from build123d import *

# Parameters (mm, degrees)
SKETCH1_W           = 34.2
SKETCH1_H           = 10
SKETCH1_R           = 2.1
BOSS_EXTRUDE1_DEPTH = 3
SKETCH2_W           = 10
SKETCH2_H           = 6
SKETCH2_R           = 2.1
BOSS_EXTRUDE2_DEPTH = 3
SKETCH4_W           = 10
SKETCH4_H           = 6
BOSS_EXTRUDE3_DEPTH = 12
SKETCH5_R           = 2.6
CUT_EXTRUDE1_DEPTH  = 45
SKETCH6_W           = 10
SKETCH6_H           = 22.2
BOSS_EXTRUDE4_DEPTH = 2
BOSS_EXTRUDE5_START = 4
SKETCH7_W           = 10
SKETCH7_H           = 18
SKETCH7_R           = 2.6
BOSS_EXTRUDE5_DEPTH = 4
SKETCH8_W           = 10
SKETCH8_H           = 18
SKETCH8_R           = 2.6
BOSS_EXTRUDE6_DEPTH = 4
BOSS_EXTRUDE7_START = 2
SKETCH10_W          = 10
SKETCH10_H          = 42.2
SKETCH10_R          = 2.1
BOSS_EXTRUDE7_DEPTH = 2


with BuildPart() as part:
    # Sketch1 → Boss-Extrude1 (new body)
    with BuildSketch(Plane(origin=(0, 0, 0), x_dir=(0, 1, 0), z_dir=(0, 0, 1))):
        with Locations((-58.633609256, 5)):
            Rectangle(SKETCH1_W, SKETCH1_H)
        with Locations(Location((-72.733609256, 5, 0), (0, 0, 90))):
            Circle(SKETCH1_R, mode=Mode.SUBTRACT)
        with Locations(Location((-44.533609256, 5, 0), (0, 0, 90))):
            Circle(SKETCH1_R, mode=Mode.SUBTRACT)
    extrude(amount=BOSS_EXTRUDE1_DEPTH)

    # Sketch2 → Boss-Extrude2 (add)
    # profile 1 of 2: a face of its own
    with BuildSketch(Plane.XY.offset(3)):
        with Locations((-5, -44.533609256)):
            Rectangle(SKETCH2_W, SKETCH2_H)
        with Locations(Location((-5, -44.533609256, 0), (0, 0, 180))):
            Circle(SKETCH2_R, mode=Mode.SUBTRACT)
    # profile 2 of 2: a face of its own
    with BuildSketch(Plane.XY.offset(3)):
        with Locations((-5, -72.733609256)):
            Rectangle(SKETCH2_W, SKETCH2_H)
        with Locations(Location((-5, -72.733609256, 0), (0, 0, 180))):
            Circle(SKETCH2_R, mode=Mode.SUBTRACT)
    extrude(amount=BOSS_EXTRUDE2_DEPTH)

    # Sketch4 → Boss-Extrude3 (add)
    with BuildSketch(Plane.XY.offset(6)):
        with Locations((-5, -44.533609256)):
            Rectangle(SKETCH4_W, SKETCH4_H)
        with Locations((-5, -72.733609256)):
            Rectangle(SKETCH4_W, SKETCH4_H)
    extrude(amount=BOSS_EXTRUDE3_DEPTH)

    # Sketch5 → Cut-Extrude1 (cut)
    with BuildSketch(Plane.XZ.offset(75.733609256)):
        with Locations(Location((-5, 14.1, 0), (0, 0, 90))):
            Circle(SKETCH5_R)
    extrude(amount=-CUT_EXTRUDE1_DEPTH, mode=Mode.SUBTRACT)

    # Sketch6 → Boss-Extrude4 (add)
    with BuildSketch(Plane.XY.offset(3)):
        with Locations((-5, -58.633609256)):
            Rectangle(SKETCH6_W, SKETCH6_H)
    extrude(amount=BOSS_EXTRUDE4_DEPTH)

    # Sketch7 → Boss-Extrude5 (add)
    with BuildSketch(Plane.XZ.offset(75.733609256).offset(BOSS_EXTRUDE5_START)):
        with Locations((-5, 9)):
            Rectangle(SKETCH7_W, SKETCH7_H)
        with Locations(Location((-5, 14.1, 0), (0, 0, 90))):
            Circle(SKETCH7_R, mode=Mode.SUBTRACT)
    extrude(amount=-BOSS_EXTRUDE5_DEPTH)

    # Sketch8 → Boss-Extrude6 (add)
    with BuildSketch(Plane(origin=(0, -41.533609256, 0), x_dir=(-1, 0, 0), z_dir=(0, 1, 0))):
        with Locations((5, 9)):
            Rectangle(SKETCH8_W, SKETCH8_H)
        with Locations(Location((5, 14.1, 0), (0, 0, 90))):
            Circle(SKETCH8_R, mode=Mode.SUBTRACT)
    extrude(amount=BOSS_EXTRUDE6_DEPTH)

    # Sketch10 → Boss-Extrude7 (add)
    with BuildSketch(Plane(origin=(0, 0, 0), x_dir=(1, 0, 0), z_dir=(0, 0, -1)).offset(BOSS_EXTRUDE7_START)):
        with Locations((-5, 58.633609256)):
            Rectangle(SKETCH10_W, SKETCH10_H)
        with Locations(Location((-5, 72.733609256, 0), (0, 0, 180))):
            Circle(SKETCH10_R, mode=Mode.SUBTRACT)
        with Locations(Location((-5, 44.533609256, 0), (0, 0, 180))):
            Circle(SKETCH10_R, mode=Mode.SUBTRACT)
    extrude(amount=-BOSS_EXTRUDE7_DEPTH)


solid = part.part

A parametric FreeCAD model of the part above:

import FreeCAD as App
import Part
import Sketcher
from FreeCAD import Vector
Q = App.Units.Quantity


def add_polygon(sketch, points):
    """Adds a closed chain of lines whose ends are joined by coincident constraints."""
    first, n = sketch.GeometryCount, len(points)
    for a, b in zip(points, points[1:] + points[:1]):
        sketch.addGeometry(Part.LineSegment(App.Vector(*a, 0), App.Vector(*b, 0)), False)
    for i in range(n):
        sketch.addConstraint(Sketcher.Constraint("Coincident", first + i, 2, first + (i + 1) % n, 1))

doc = App.newDocument("Part")
params = doc.addObject("Spreadsheet::Sheet", "Params")
for row, (alias, value) in enumerate([
    ("sketch1_diameter", "4.2 mm"),
    ("sketch1_width", "10 mm"),
    ("sketch1_height", "34.2 mm"),
    ("pad1_length", "3 mm"),
    ("sketch2_diameter", "4.2 mm"),
    ("sketch2_width", "10 mm"),
    ("sketch2_height", "6 mm"),
    ("pad2_length", "3 mm"),
    ("sketch3_width", "10 mm"),
    ("sketch3_height", "6 mm"),
    ("pad3_length", "12 mm"),
    ("sketch4_diameter", "5.2 mm"),
    ("pocket1_length", "45 mm"),
    ("sketch5_width", "10 mm"),
    ("sketch5_height", "22.2 mm"),
    ("pad4_length", "2 mm"),
    ("sketch6_diameter", "5.2 mm"),
    ("sketch6_width", "10 mm"),
    ("sketch6_height", "18 mm"),
    ("pad5_length", "4 mm"),
    ("sketch7_diameter", "5.2 mm"),
    ("sketch7_width", "10 mm"),
    ("sketch7_height", "18 mm"),
    ("pad6_length", "4 mm"),
    ("sketch8_diameter", "4.2 mm"),
    ("sketch8_width", "10 mm"),
    ("sketch8_height", "42.2 mm"),
    ("pad7_length", "2 mm"),
], start=1):
    params.set(f"A{row}", alias)
    params.set(f"B{row}", "=" + value)
    params.setAlias(f"B{row}", alias)

body = doc.addObject("PartDesign::Body", "Body")

# Sketch on XY plane
sketch1 = body.newObject("Sketcher::SketchObject", "Sketch")
sketch1.AttachmentSupport = (doc.getObject("XY_Plane"), [""])
sketch1.MapMode = "FlatFace"
add_polygon(sketch1, [(-10, -75.7), (0, -75.7), (0, -41.5), (-10, -41.5)])  # lines 0-3
sketch1.addGeometry(Part.Circle(Vector(-5, -72.7, 0), Vector(0, 0, 1), 2.1), False)  # 4
sketch1.addGeometry(Part.Circle(Vector(-5, -44.5, 0), Vector(0, 0, 1), 2.1), False)  # 5
sketch1.addConstraint(Sketcher.Constraint("Horizontal", 0))
sketch1.addConstraint(Sketcher.Constraint("Vertical", 1))
sketch1.addConstraint(Sketcher.Constraint("Horizontal", 2))
sketch1.addConstraint(Sketcher.Constraint("Vertical", 3))
sketch1.addConstraint(Sketcher.Constraint("Equal", 4, 5))
sketch1.addConstraint(Sketcher.Constraint("PointOnObject", 0, 2, -2))
sketch1.addConstraint(Sketcher.Constraint("Vertical", 4, 3, 5, 3))
sketch1.addConstraint(Sketcher.Constraint("Diameter", 4, Q("4.2 mm")))
sketch1.addConstraint(Sketcher.Constraint("DistanceX", 0, 1, 0, 2, Q("10 mm")))
sketch1.addConstraint(Sketcher.Constraint("DistanceY", 1, 1, 1, 2, Q("34.2 mm")))
sketch1.addConstraint(Sketcher.Constraint("DistanceX", 4, 3, -1, 1, Q("5 mm")))
sketch1.addConstraint(Sketcher.Constraint("DistanceY", 0, 2, 4, 3, Q("3 mm")))
sketch1.addConstraint(Sketcher.Constraint("DistanceY", 5, 3, 1, 2, Q("3 mm")))
sketch1.addConstraint(Sketcher.Constraint("DistanceY", 4, 3, -1, 1, Q("72.733609 mm")))
sketch1.setExpression("Constraints[11]", "Params.sketch1_diameter")
sketch1.setExpression("Constraints[12]", "Params.sketch1_width")
sketch1.setExpression("Constraints[13]", "Params.sketch1_height")
pad1 = body.newObject("PartDesign::Pad", "Pad")
pad1.Profile = sketch1
pad1.setExpression("Length", "Params.pad1_length")

# Sketch on XY plane
sketch2 = body.newObject("Sketcher::SketchObject", "Sketch001")
sketch2.AttachmentSupport = (doc.getObject("XY_Plane"), [""])
sketch2.MapMode = "FlatFace"
sketch2.AttachmentOffset = App.Placement(Vector(0, 0, 3), App.Rotation())
add_polygon(sketch2, [(-10, -41.5), (-10, -47.5), (0, -47.5), (0, -41.5)])  # lines 0-3
sketch2.addGeometry(Part.Circle(Vector(-5, -44.5, 0), Vector(0, 0, 1), 2.1), False)  # 4
add_polygon(sketch2, [(-10, -69.7), (-10, -75.7), (0, -75.7), (0, -69.7)])  # lines 5-8
sketch2.addGeometry(Part.Circle(Vector(-5, -72.7, 0), Vector(0, 0, 1), 2.1), False)  # 9
sketch2.addConstraint(Sketcher.Constraint("Vertical", 0))
sketch2.addConstraint(Sketcher.Constraint("Horizontal", 1))
sketch2.addConstraint(Sketcher.Constraint("Vertical", 2))
sketch2.addConstraint(Sketcher.Constraint("Horizontal", 3))
sketch2.addConstraint(Sketcher.Constraint("Vertical", 5))
sketch2.addConstraint(Sketcher.Constraint("Horizontal", 6))
sketch2.addConstraint(Sketcher.Constraint("Vertical", 7))
sketch2.addConstraint(Sketcher.Constraint("Horizontal", 8))
sketch2.addConstraint(Sketcher.Constraint("Equal", 4, 9))
sketch2.addConstraint(Sketcher.Constraint("PointOnObject", 1, 2, -2))
sketch2.addConstraint(Sketcher.Constraint("PointOnObject", 6, 2, -2))
sketch2.addConstraint(Sketcher.Constraint("Vertical", 4, 3, 9, 3))
sketch2.addConstraint(Sketcher.Constraint("Vertical", 3, 2, 5, 2))
sketch2.addConstraint(Sketcher.Constraint("Equal", 2, 5))
sketch2.addConstraint(Sketcher.Constraint("Diameter", 4, Q("4.2 mm")))
sketch2.addConstraint(Sketcher.Constraint("DistanceX", 1, 1, 1, 2, Q("10 mm")))
sketch2.addConstraint(Sketcher.Constraint("DistanceY", 0, 2, 0, 1, Q("6 mm")))
sketch2.addConstraint(Sketcher.Constraint("DistanceX", 4, 3, -1, 1, Q("5 mm")))
sketch2.addConstraint(Sketcher.Constraint("DistanceY", 0, 2, 4, 3, Q("3 mm")))
sketch2.addConstraint(Sketcher.Constraint("DistanceY", 5, 2, 9, 3, Q("3 mm")))
sketch2.addConstraint(Sketcher.Constraint("DistanceY", 9, 3, 4, 3, Q("28.2 mm")))
sketch2.addConstraint(Sketcher.Constraint("DistanceY", 4, 3, -1, 1, Q("44.533609 mm")))
sketch2.setExpression("Constraints[22]", "Params.sketch2_diameter")
sketch2.setExpression("Constraints[23]", "Params.sketch2_width")
sketch2.setExpression("Constraints[24]", "Params.sketch2_height")
pad2 = body.newObject("PartDesign::Pad", "Pad001")
pad2.Profile = sketch2
pad2.setExpression("Length", "Params.pad2_length")

# Sketch on XY plane
sketch3 = body.newObject("Sketcher::SketchObject", "Sketch002")
sketch3.AttachmentSupport = (doc.getObject("XY_Plane"), [""])
sketch3.MapMode = "FlatFace"
sketch3.AttachmentOffset = App.Placement(Vector(0, 0, 6), App.Rotation())
add_polygon(sketch3, [(-10, -42), (-10, -48), (0, -48), (0, -42)])  # lines 0-3
add_polygon(sketch3, [(-10, -70), (-10, -76), (0, -76), (0, -70)])  # lines 4-7
sketch3.addConstraint(Sketcher.Constraint("Vertical", 0))
sketch3.addConstraint(Sketcher.Constraint("Horizontal", 1))
sketch3.addConstraint(Sketcher.Constraint("Vertical", 2))
sketch3.addConstraint(Sketcher.Constraint("Horizontal", 3))
sketch3.addConstraint(Sketcher.Constraint("Vertical", 4))
sketch3.addConstraint(Sketcher.Constraint("Horizontal", 5))
sketch3.addConstraint(Sketcher.Constraint("Vertical", 6))
sketch3.addConstraint(Sketcher.Constraint("Horizontal", 7))
sketch3.addConstraint(Sketcher.Constraint("PointOnObject", 1, 2, -2))
sketch3.addConstraint(Sketcher.Constraint("PointOnObject", 5, 2, -2))
sketch3.addConstraint(Sketcher.Constraint("Vertical", 3, 2, 4, 2))
sketch3.addConstraint(Sketcher.Constraint("Equal", 2, 4))
sketch3.addConstraint(Sketcher.Constraint("DistanceX", 1, 1, 1, 2, Q("10 mm")))
sketch3.addConstraint(Sketcher.Constraint("DistanceY", 0, 2, 0, 1, Q("6 mm")))
sketch3.addConstraint(Sketcher.Constraint("DistanceY", 4, 2, 0, 2, Q("28.2 mm")))
sketch3.addConstraint(Sketcher.Constraint("DistanceY", 0, 2, -1, 1, Q("47.533609 mm")))
sketch3.setExpression("Constraints[20]", "Params.sketch3_width")
sketch3.setExpression("Constraints[21]", "Params.sketch3_height")
pad3 = body.newObject("PartDesign::Pad", "Pad002")
pad3.Profile = sketch3
pad3.setExpression("Length", "Params.pad3_length")

# Sketch on XZ plane
sketch4 = body.newObject("Sketcher::SketchObject", "Sketch003")
sketch4.AttachmentSupport = (doc.getObject("XZ_Plane"), [""])
sketch4.MapMode = "FlatFace"
sketch4.AttachmentOffset = App.Placement(Vector(0, 0, 75.733609), App.Rotation())
sketch4.addGeometry(Part.Circle(Vector(-5, 14.1, 0), Vector(0, 0, 1), 2.6), False)
sketch4.addConstraint(Sketcher.Constraint("Diameter", 0, Q("5.2 mm")))
sketch4.addConstraint(Sketcher.Constraint("DistanceX", 0, 3, -1, 1, Q("5 mm")))
sketch4.addConstraint(Sketcher.Constraint("DistanceY", -1, 1, 0, 3, Q("14.1 mm")))
sketch4.setExpression("Constraints[0]", "Params.sketch4_diameter")
pocket1 = body.newObject("PartDesign::Pocket", "Pocket")
pocket1.Profile = sketch4
pocket1.setExpression("Length", "Params.pocket1_length")

# Sketch on XY plane
sketch5 = body.newObject("Sketcher::SketchObject", "Sketch004")
sketch5.AttachmentSupport = (doc.getObject("XY_Plane"), [""])
sketch5.MapMode = "FlatFace"
sketch5.AttachmentOffset = App.Placement(Vector(0, 0, 3), App.Rotation())
add_polygon(sketch5, [(-10, -48), (-10, -70), (0, -70), (0, -48)])  # lines 0-3
sketch5.addConstraint(Sketcher.Constraint("Vertical", 0))
sketch5.addConstraint(Sketcher.Constraint("Horizontal", 1))
sketch5.addConstraint(Sketcher.Constraint("Vertical", 2))
sketch5.addConstraint(Sketcher.Constraint("Horizontal", 3))
sketch5.addConstraint(Sketcher.Constraint("PointOnObject", 1, 2, -2))
sketch5.addConstraint(Sketcher.Constraint("DistanceX", 1, 1, 1, 2, Q("10 mm")))
sketch5.addConstraint(Sketcher.Constraint("DistanceY", 0, 2, 0, 1, Q("22.2 mm")))
sketch5.addConstraint(Sketcher.Constraint("DistanceY", 0, 2, -1, 1, Q("69.733609 mm")))
sketch5.setExpression("Constraints[9]", "Params.sketch5_width")
sketch5.setExpression("Constraints[10]", "Params.sketch5_height")
pad4 = body.newObject("PartDesign::Pad", "Pad003")
pad4.Profile = sketch5
pad4.setExpression("Length", "Params.pad4_length")

# Sketch on XZ plane
sketch6 = body.newObject("Sketcher::SketchObject", "Sketch005")
sketch6.AttachmentSupport = (doc.getObject("XZ_Plane"), [""])
sketch6.MapMode = "FlatFace"
sketch6.AttachmentOffset = App.Placement(Vector(0, 0, 79.733609), App.Rotation())
add_polygon(sketch6, [(-10, 18), (-10, 0), (0, 0), (0, 18)])  # lines 0-3
sketch6.addGeometry(Part.Circle(Vector(-5, 14.1, 0), Vector(0, 0, 1), 2.6), False)  # 4
sketch6.addConstraint(Sketcher.Constraint("Vertical", 0))
sketch6.addConstraint(Sketcher.Constraint("Horizontal", 1))
sketch6.addConstraint(Sketcher.Constraint("Vertical", 2))
sketch6.addConstraint(Sketcher.Constraint("Horizontal", 3))
sketch6.addConstraint(Sketcher.Constraint("Coincident", 1, 2, -1, 1))
sketch6.addConstraint(Sketcher.Constraint("Diameter", 4, Q("5.2 mm")))
sketch6.addConstraint(Sketcher.Constraint("DistanceX", 1, 1, 1, 2, Q("10 mm")))
sketch6.addConstraint(Sketcher.Constraint("DistanceY", 0, 2, 0, 1, Q("18 mm")))
sketch6.addConstraint(Sketcher.Constraint("DistanceX", 4, 3, -1, 1, Q("5 mm")))
sketch6.addConstraint(Sketcher.Constraint("DistanceY", -1, 1, 4, 3, Q("14.1 mm")))
sketch6.setExpression("Constraints[9]", "Params.sketch6_diameter")
sketch6.setExpression("Constraints[10]", "Params.sketch6_width")
sketch6.setExpression("Constraints[11]", "Params.sketch6_height")
pad5 = body.newObject("PartDesign::Pad", "Pad004")
pad5.Profile = sketch6
pad5.setExpression("Length", "Params.pad5_length")
pad5.Reversed = True

# Sketch on XZ plane
sketch7 = body.newObject("Sketcher::SketchObject", "Sketch006")
sketch7.AttachmentSupport = (doc.getObject("XZ_Plane"), [""])
sketch7.MapMode = "FlatFace"
sketch7.AttachmentOffset = App.Placement(Vector(0, 0, 41.533609), App.Rotation())
add_polygon(sketch7, [(0, 18), (0, 0), (-10, 0), (-10, 18)])  # lines 0-3
sketch7.addGeometry(Part.Circle(Vector(-5, 14.1, 0), Vector(0, 0, 1), 2.6), False)  # 4
sketch7.addConstraint(Sketcher.Constraint("Vertical", 0))
sketch7.addConstraint(Sketcher.Constraint("Horizontal", 1))
sketch7.addConstraint(Sketcher.Constraint("Vertical", 2))
sketch7.addConstraint(Sketcher.Constraint("Horizontal", 3))
sketch7.addConstraint(Sketcher.Constraint("Coincident", 0, 2, -1, 1))
sketch7.addConstraint(Sketcher.Constraint("Diameter", 4, Q("5.2 mm")))
sketch7.addConstraint(Sketcher.Constraint("DistanceX", 1, 2, 1, 1, Q("10 mm")))
sketch7.addConstraint(Sketcher.Constraint("DistanceY", 0, 2, 0, 1, Q("18 mm")))
sketch7.addConstraint(Sketcher.Constraint("DistanceX", 4, 3, -1, 1, Q("5 mm")))
sketch7.addConstraint(Sketcher.Constraint("DistanceY", -1, 1, 4, 3, Q("14.1 mm")))
sketch7.setExpression("Constraints[9]", "Params.sketch7_diameter")
sketch7.setExpression("Constraints[10]", "Params.sketch7_width")
sketch7.setExpression("Constraints[11]", "Params.sketch7_height")
pad6 = body.newObject("PartDesign::Pad", "Pad005")
pad6.Profile = sketch7
pad6.setExpression("Length", "Params.pad6_length")
pad6.Reversed = True

# Sketch on XY plane
sketch8 = body.newObject("Sketcher::SketchObject", "Sketch007")
sketch8.AttachmentSupport = (doc.getObject("XY_Plane"), [""])
sketch8.MapMode = "FlatFace"
sketch8.AttachmentOffset = App.Placement(Vector(0, 0, -2), App.Rotation())
add_polygon(sketch8, [(-10, -79.7), (-10, -37.5), (0, -37.5), (0, -79.7)])  # lines 0-3
sketch8.addGeometry(Part.Circle(Vector(-5, -44.5, 0), Vector(0, 0, 1), 2.1), False)  # 4
sketch8.addGeometry(Part.Circle(Vector(-5, -72.7, 0), Vector(0, 0, 1), 2.1), False)  # 5
sketch8.addConstraint(Sketcher.Constraint("Vertical", 0))
sketch8.addConstraint(Sketcher.Constraint("Horizontal", 1))
sketch8.addConstraint(Sketcher.Constraint("Vertical", 2))
sketch8.addConstraint(Sketcher.Constraint("Horizontal", 3))
sketch8.addConstraint(Sketcher.Constraint("Equal", 4, 5))
sketch8.addConstraint(Sketcher.Constraint("PointOnObject", 1, 2, -2))
sketch8.addConstraint(Sketcher.Constraint("Vertical", 4, 3, 5, 3))
sketch8.addConstraint(Sketcher.Constraint("Diameter", 4, Q("4.2 mm")))
sketch8.addConstraint(Sketcher.Constraint("DistanceX", 1, 1, 1, 2, Q("10 mm")))
sketch8.addConstraint(Sketcher.Constraint("DistanceY", 0, 1, 0, 2, Q("42.2 mm")))
sketch8.addConstraint(Sketcher.Constraint("DistanceX", 4, 3, -1, 1, Q("5 mm")))
sketch8.addConstraint(Sketcher.Constraint("DistanceY", 4, 3, 0, 2, Q("7 mm")))
sketch8.addConstraint(Sketcher.Constraint("DistanceY", 2, 2, 5, 3, Q("7 mm")))
sketch8.addConstraint(Sketcher.Constraint("DistanceY", 4, 3, -1, 1, Q("44.533609 mm")))
sketch8.setExpression("Constraints[11]", "Params.sketch8_diameter")
sketch8.setExpression("Constraints[12]", "Params.sketch8_width")
sketch8.setExpression("Constraints[13]", "Params.sketch8_height")
pad7 = body.newObject("PartDesign::Pad", "Pad006")
pad7.Profile = sketch8
pad7.setExpression("Length", "Params.pad7_length")

doc.recompute()
